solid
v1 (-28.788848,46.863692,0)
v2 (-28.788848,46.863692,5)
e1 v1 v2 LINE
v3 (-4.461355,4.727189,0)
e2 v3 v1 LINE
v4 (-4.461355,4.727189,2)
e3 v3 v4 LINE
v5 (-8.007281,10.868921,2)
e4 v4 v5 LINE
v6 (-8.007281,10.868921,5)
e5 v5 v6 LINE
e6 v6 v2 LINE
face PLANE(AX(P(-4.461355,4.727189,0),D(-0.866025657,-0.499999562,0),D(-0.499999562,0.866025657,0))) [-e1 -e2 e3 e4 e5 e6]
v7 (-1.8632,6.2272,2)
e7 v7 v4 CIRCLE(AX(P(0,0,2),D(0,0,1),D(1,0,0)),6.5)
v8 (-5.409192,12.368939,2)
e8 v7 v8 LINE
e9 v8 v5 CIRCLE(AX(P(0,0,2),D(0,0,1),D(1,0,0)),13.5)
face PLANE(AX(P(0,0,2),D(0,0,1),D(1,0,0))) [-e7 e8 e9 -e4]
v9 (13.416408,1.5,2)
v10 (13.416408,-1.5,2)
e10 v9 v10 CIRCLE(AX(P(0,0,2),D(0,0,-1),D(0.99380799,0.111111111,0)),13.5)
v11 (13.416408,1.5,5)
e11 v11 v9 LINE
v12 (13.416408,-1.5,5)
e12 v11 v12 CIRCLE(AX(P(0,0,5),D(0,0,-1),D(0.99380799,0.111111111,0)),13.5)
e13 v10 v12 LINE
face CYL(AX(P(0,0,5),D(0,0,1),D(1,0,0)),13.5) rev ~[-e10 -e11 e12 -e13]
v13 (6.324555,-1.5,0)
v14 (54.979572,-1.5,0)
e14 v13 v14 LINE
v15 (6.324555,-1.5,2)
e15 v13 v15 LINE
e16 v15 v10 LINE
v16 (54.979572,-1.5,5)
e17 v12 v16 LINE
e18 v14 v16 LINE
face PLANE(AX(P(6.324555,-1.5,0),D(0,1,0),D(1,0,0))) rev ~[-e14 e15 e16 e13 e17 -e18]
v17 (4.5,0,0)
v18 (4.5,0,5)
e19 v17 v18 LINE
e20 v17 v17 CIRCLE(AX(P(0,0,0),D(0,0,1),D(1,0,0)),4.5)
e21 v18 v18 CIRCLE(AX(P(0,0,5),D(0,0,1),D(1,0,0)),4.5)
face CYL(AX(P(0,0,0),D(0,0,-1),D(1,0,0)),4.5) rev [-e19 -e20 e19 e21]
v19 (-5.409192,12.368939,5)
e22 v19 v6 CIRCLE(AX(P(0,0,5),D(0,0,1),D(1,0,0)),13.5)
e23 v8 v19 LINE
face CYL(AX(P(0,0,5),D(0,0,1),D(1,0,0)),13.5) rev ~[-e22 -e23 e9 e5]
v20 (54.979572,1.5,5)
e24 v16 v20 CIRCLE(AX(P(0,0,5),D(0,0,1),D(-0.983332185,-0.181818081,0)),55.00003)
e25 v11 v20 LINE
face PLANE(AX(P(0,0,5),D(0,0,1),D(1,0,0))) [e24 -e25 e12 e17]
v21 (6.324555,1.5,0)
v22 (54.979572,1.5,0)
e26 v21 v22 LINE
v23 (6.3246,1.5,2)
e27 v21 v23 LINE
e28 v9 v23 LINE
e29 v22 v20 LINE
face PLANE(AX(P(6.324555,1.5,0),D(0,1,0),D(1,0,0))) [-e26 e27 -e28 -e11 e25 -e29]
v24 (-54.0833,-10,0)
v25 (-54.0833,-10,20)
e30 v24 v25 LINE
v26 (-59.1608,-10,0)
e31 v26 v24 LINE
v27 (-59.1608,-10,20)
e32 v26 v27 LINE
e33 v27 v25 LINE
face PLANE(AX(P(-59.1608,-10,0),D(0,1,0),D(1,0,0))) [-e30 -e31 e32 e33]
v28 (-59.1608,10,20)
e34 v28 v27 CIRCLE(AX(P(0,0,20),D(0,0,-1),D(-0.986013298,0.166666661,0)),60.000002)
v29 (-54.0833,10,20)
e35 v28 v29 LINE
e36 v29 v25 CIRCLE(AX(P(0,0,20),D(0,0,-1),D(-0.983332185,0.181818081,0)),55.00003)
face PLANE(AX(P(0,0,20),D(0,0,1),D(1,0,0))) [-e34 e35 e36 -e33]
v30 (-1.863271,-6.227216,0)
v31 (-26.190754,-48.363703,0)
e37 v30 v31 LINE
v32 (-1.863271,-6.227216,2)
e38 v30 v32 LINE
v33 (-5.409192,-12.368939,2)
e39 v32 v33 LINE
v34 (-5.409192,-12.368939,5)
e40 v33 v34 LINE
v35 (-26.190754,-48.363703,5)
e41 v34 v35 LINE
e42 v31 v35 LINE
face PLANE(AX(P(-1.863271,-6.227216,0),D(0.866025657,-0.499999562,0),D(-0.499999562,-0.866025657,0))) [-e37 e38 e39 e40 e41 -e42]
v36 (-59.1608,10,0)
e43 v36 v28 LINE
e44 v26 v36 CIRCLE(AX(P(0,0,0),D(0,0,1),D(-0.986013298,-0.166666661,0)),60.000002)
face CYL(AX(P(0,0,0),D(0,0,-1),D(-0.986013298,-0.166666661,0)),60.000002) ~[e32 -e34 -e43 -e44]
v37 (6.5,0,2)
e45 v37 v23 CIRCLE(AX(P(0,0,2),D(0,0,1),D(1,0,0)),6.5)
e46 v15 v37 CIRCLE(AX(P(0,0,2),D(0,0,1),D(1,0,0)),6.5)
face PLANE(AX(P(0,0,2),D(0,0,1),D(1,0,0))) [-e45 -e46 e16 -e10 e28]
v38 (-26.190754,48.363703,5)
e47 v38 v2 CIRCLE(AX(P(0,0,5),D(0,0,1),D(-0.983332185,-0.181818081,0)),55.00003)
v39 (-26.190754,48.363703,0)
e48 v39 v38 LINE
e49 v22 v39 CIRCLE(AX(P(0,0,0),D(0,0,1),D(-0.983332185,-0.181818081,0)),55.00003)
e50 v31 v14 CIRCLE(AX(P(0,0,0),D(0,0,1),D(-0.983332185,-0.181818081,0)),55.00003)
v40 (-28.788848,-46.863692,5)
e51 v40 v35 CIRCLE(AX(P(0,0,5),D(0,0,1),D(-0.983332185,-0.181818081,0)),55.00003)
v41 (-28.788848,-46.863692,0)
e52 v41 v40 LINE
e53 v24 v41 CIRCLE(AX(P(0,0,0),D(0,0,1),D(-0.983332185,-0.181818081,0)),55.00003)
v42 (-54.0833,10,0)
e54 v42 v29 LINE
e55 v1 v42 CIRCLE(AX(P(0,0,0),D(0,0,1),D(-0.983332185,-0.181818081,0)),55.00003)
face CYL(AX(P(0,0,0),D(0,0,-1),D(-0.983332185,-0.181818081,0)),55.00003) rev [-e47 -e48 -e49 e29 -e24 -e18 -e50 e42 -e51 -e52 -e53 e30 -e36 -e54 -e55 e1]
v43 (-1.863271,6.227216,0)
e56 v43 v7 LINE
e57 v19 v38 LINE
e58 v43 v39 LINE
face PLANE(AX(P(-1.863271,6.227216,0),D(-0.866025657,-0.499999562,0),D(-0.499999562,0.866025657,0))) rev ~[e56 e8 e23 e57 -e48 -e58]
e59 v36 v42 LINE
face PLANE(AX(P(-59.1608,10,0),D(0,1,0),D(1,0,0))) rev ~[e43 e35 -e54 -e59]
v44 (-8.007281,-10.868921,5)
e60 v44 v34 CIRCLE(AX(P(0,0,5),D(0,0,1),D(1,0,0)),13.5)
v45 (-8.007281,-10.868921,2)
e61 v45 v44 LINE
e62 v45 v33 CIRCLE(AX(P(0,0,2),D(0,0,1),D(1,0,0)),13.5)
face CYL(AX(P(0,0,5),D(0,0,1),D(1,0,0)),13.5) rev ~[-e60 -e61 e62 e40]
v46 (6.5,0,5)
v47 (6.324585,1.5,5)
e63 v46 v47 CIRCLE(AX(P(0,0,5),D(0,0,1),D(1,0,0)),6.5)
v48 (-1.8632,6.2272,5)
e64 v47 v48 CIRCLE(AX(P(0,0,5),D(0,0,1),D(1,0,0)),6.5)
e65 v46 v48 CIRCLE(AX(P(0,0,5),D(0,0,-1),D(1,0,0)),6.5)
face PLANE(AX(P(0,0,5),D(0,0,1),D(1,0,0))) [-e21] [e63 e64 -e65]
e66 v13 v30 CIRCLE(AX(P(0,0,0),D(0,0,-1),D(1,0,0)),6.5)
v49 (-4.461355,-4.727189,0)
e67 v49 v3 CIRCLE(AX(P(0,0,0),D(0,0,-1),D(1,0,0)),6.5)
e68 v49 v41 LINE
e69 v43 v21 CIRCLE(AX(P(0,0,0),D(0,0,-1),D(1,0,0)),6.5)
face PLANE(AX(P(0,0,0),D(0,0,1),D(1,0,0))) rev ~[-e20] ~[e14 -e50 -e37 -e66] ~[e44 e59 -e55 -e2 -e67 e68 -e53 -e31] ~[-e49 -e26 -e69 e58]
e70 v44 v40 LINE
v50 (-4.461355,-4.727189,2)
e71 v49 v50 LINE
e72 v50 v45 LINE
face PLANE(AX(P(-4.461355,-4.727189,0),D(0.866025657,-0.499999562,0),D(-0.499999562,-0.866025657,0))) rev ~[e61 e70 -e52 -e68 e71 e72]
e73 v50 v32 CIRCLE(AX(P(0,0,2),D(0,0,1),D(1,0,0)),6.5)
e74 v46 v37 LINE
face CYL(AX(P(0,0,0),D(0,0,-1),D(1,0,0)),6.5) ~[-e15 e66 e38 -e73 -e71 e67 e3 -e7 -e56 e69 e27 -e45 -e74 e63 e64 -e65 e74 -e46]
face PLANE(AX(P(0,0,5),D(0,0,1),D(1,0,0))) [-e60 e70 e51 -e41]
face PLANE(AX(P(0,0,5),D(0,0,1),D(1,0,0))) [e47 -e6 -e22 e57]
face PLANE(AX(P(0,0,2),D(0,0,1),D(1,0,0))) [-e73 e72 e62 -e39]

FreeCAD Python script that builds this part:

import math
import FreeCAD as App
import Part
import Sketcher

V = App.Vector
Q = App.Units.Quantity

doc = App.newDocument("Part")
params = doc.addObject("Spreadsheet::Sheet", "Params")
for row, (alias, value) in enumerate([
    ("sketch1_diameter", "13 mm"),
    ("sketch1_diameter2", "9 mm"),
    ("sketch1_radius", "60 mm"),
    ("sketch1_radius2", "55 mm"),
    ("pad1_length", "20 mm"),
    ("sketch2_radius", "60 mm"),
    ("sketch2_radius2", "4.5 mm"),
    ("pad2_length", "5 mm"),
    ("sketch3_diameter", "13 mm"),
    ("sketch3_diameter2", "9 mm"),
    ("pocket1_length", "15 mm"),
    ("sketch4_diameter", "27 mm"),
    ("sketch4_radius", "6.5 mm"),
    ("pocket2_length", "3 mm"),
], start=1):
    params.set(f"A{row}", alias)
    params.set(f"B{row}", "=" + value)
    params.setAlias(f"B{row}", alias)

body = doc.addObject("PartDesign::Body", "Body")
body.AllowCompound = True

sketch1 = body.newObject("Sketcher::SketchObject", "Sketch")
sketch1.AttachmentSupport = (doc.getObject("XY_Plane"), [""])
sketch1.MapMode = "FlatFace"
sketch1.addGeometry([
    Part.LineSegment(V(-59.1608, 10, 0), V(-54.0833, 10, 0)),
    Part.ArcOfCircle(Part.Circle(V(0, 0, 0), V(0, 0, 1), 55.00003), math.radians(-169.524324), math.radians(169.524324)),
    Part.LineSegment(V(-54.0833, -10, 0), V(-59.1608, -10, 0)),
    Part.ArcOfCircle(Part.Circle(V(0, 0, 0), V(0, 0, 1), 60.000002), math.radians(-170.405932), math.radians(170.405932)),
    Part.Circle(V(0, 0, 0), V(0, 0, 1), 6.5),
    Part.Circle(V(0, 0, 0), V(0, 0, 1), 4.5),
], False)
sketch1.addConstraint([
    Sketcher.Constraint("Coincident", 0, 2, 1, 2),
    Sketcher.Constraint("Coincident", 1, 1, 2, 1),
    Sketcher.Constraint("Coincident", 2, 2, 3, 1),
    Sketcher.Constraint("Coincident", 3, 2, 0, 1),
    Sketcher.Constraint("Horizontal", 0),
    Sketcher.Constraint("Horizontal", 2),
    Sketcher.Constraint("Coincident", 1, 3, -1, 1),
    Sketcher.Constraint("Coincident", 3, 3, -1, 1),
    Sketcher.Constraint("Coincident", 4, 3, -1, 1),
    Sketcher.Constraint("Coincident", 5, 3, -1, 1),
    Sketcher.Constraint("Vertical", 0, 2, 1, 1),
    Sketcher.Constraint("Diameter", 4, 13.0),
    Sketcher.Constraint("Diameter", 5, 9.0),
    Sketcher.Constraint("Radius", 3, 60.0),
    Sketcher.Constraint("Radius", 1, 55.0),
    Sketcher.Constraint("DistanceY", 1, 1, 0, 2, 20.0),
])
sketch1.setExpression("Constraints[11]", "Params.sketch1_diameter")
sketch1.setExpression("Constraints[12]", "Params.sketch1_diameter2")
sketch1.setExpression("Constraints[13]", "Params.sketch1_radius")
sketch1.setExpression("Constraints[14]", "Params.sketch1_radius2")
pad1 = body.newObject("PartDesign::Pad", "Pad")
pad1.Profile = sketch1
pad1.setExpression("Length", "Params.pad1_length")

sketch2 = body.newObject("Sketcher::SketchObject", "Sketch001")
sketch2.AttachmentSupport = (doc.getObject("XY_Plane"), [""])
sketch2.MapMode = "FlatFace"
sketch2.addGeometry([
    Part.ArcOfCircle(Part.Circle(V(0, 0, 0), V(0, 0, 1), 60.000002), math.radians(118.567461), math.radians(121.432567)),
    Part.LineSegment(V(-31.2897, 51.1953, 0), V(-3.4204, 2.9242, 0)),
    Part.ArcOfCircle(Part.Circle(V(0, 0, 0), V(0, 0, 1), 4.5), math.radians(100.529082), math.radians(139.471899)),
    Part.LineSegment(V(-0.8223, 4.4242, 0), V(-28.6916, 52.6953, 0)),
    Part.ArcOfCircle(Part.Circle(V(0, 0, 0), V(0, 0, 1), 60.000002), math.radians(-1.432545), math.radians(1.432545)),
    Part.LineSegment(V(59.9812, 1.5, 0), V(4.2426, 1.5, 0)),
    Part.ArcOfCircle(Part.Circle(V(0, 0, 0), V(0, 0, 1), 4.5), math.radians(-19.471393), math.radians(19.471393)),
    Part.LineSegment(V(4.2426, -1.5, 0), V(59.9812, -1.5, 0)),
    Part.LineSegment(V(-3.4204, -2.9242, 0), V(-31.2897, -51.1953, 0)),
    Part.ArcOfCircle(Part.Circle(V(0, 0, 0), V(0, 0, 1), 60.000002), math.radians(-121.432567), math.radians(-118.567461)),
    Part.LineSegment(V(-28.6916, -52.6953, 0), V(-0.8223, -4.4242, 0)),
    Part.ArcOfCircle(Part.Circle(V(0, 0, 0), V(0, 0, 1), 4.5), math.radians(-139.471899), math.radians(-100.529082)),
], False)
sketch2.addConstraint([
    Sketcher.Constraint("Coincident", 0, 2, 1, 1),
    Sketcher.Constraint("Coincident", 1, 2, 2, 2),
    Sketcher.Constraint("Coincident", 2, 1, 3, 1),
    Sketcher.Constraint("Coincident", 3, 2, 0, 1),
    Sketcher.Constraint("Coincident", 4, 2, 5, 1),
    Sketcher.Constraint("Coincident", 5, 2, 6, 2),
    Sketcher.Constraint("Coincident", 6, 1, 7, 1),
    Sketcher.Constraint("Coincident", 7, 2, 4, 1),
    Sketcher.Constraint("Coincident", 8, 2, 9, 1),
    Sketcher.Constraint("Coincident", 9, 2, 10, 1),
    Sketcher.Constraint("Coincident", 10, 2, 11, 2),
    Sketcher.Constraint("Coincident", 11, 1, 8, 1),
    Sketcher.Constraint("Horizontal", 5),
    Sketcher.Constraint("Horizontal", 7),
    Sketcher.Constraint("Coincident", 0, 3, -1, 1),
    Sketcher.Constraint("Coincident", 2, 3, -1, 1),
    Sketcher.Constraint("Coincident", 4, 3, -1, 1),
    Sketcher.Constraint("Coincident", 6, 3, -1, 1),
    Sketcher.Constraint("Coincident", 9, 3, -1, 1),
    Sketcher.Constraint("Coincident", 11, 3, -1, 1),
    Sketcher.Constraint("Equal", 0, 4),
    Sketcher.Constraint("Equal", 2, 6),
    Sketcher.Constraint("Equal", 4, 9),
    Sketcher.Constraint("Equal", 6, 11),
    Sketcher.Constraint("Parallel", 1, 3),
    Sketcher.Constraint("Parallel", 8, 10),
    Sketcher.Constraint("Vertical", 5, 2, 6, 1),
    Sketcher.Constraint("Vertical", 0, 2, 8, 2),
    Sketcher.Constraint("Vertical", 3, 2, 9, 2),
    Sketcher.Constraint("Vertical", 2, 1, 10, 2),
    Sketcher.Constraint("Equal", 1, 3),
    Sketcher.Constraint("Radius", 0, 60.0),
    Sketcher.Constraint("Radius", 2, 4.5),
    Sketcher.Constraint("Angle", 3, Q("120 deg")),
    Sketcher.Constraint("DistanceY", 6, 1, 5, 2, 3.0),
    Sketcher.Constraint("DistanceY", 1, 2, 2, 1, 1.5),
])
sketch2.setExpression("Constraints[31]", "Params.sketch2_radius")
sketch2.setExpression("Constraints[32]", "Params.sketch2_radius2")
pad2 = body.newObject("PartDesign::Pad", "Pad001")
pad2.Profile = sketch2
pad2.setExpression("Length", "Params.pad2_length")

sketch3 = body.newObject("Sketcher::SketchObject", "Sketch002")
sketch3.AttachmentSupport = (doc.getObject("XY_Plane"), [""])
sketch3.MapMode = "FlatFace"
sketch3.AttachmentOffset = App.Placement(V(0, 0, 20), App.Rotation())
sketch3.addGeometry([
    Part.Circle(V(0, 0, 0), V(0, 0, 1), 6.5),
    Part.Circle(V(0, 0, 0), V(0, 0, 1), 4.5),
], False)
sketch3.addConstraint([
    Sketcher.Constraint("Coincident", 0, 3, -1, 1),
    Sketcher.Constraint("Coincident", 1, 3, -1, 1),
    Sketcher.Constraint("Diameter", 0, 13.0),
    Sketcher.Constraint("Diameter", 1, 9.0),
])
sketch3.setExpression("Constraints[2]", "Params.sketch3_diameter")
sketch3.setExpression("Constraints[3]", "Params.sketch3_diameter2")
pocket1 = body.newObject("PartDesign::Pocket", "Pocket")
pocket1.Profile = sketch3
pocket1.setExpression("Length", "Params.pocket1_length")

sketch4 = body.newObject("Sketcher::SketchObject", "Sketch003")
sketch4.AttachmentSupport = (doc.getObject("XY_Plane"), [""])
sketch4.MapMode = "FlatFace"
sketch4.AttachmentOffset = App.Placement(V(0, 0, 5), App.Rotation())
sketch4.addGeometry([
    Part.Circle(V(0, 0, 0), V(0, 0, 1), 13.5),
    Part.ArcOfCircle(Part.Circle(V(0, 0, 0), V(0, 0, 1), 6.5), math.radians(13.342273), math.radians(106.657367)),
    Part.ArcOfCircle(Part.Circle(V(0, 0, 0), V(0, 0, 1), 6.5), math.radians(106.657367), math.radians(373.342273)),
], False)
sketch4.addConstraint([
    Sketcher.Constraint("Tangent", 1, 1, 2, 2),
    Sketcher.Constraint("Coincident", 2, 1, 1, 2),
    Sketcher.Constraint("Coincident", 0, 3, -1, 1),
    Sketcher.Constraint("Coincident", 1, 3, -1, 1),
    Sketcher.Constraint("Diameter", 0, 27.0),
    Sketcher.Constraint("Radius", 1, 6.5),
    Sketcher.Constraint("DistanceY", -1, 1, 1, 1, 1.5),
    Sketcher.Constraint("DistanceX", 2, 1, -1, 1, 1.8632),
])
sketch4.setExpression("Constraints[4]", "Params.sketch4_diameter")
sketch4.setExpression("Constraints[5]", "Params.sketch4_radius")
pocket2 = body.newObject("PartDesign::Pocket", "Pocket001")
pocket2.Profile = sketch4
pocket2.setExpression("Length", "Params.pocket2_length")

doc.recompute()
